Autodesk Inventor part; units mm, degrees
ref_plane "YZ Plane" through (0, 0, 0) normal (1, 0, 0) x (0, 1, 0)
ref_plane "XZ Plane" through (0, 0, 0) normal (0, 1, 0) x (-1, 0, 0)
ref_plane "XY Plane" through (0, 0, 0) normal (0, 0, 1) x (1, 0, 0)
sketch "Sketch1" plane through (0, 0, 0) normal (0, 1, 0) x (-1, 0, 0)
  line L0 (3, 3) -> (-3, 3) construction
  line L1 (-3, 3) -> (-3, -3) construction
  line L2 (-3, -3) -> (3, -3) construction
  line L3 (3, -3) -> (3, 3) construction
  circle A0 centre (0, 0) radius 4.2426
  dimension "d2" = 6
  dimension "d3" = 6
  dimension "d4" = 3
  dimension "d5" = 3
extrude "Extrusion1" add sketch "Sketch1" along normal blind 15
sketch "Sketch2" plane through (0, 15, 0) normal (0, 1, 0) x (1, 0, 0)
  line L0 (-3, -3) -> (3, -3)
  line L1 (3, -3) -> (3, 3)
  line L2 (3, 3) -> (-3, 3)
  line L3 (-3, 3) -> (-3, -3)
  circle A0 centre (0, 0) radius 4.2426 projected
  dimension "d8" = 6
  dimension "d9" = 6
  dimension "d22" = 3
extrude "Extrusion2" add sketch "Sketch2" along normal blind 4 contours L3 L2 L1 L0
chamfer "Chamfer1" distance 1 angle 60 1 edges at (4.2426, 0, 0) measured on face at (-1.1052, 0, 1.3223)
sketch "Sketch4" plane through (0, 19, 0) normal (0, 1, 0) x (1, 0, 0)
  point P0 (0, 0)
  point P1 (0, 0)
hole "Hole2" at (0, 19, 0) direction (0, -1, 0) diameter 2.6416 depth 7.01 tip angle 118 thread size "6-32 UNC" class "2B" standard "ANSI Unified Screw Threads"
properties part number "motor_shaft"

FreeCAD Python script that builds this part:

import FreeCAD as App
import Part
import Sketcher

V = App.Vector
Q = App.Units.Quantity


def edges_at(feature, points):
    """Names of the edges that pass closest to the given points."""
    edges = feature.Shape.Edges
    near = lambda p: min(range(len(edges)), key=lambda i: edges[i].distToShape(Part.Vertex(*p))[0])
    return sorted({f"Edge{near(p) + 1}" for p in points})


def add_polygon(sketch, points):
    """Adds a closed chain of lines whose ends are joined by coincident constraints."""
    first, n = sketch.GeometryCount, len(points)
    for a, b in zip(points, points[1:] + points[:1]):
        sketch.addGeometry(Part.LineSegment(App.Vector(*a, 0), App.Vector(*b, 0)), False)
    for i in range(n):
        sketch.addConstraint(Sketcher.Constraint("Coincident", first + i, 2, first + (i + 1) % n, 1))

doc = App.newDocument("Part")
body = doc.addObject("PartDesign::Body", "Body")

# Sketch on XZ plane
sketch1 = body.newObject("Sketcher::SketchObject", "Sketch")
sketch1.AttachmentSupport = (doc.getObject("XZ_Plane"), [""])
sketch1.MapMode = "FlatFace"
sketch1.addGeometry(Part.Circle(V(0, 0, 0), V(0, 0, 1), 4.2), False)
sketch1.addConstraint([
    Sketcher.Constraint("Coincident", 0, 3, -1, 1),
    Sketcher.Constraint("Diameter", 0, Q("8.4852 mm")),
])
pad1 = body.newObject("PartDesign::Pad", "Pad")
pad1.Profile = sketch1
pad1.Length = 15
pad1.Reversed = True

# Sketch on XZ plane
sketch2 = body.newObject("Sketcher::SketchObject", "Sketch001")
sketch2.AttachmentSupport = (doc.getObject("XZ_Plane"), [""])
sketch2.MapMode = "FlatFace"
sketch2.AttachmentOffset = App.Placement(V(0, 0, -15), App.Rotation())
add_polygon(sketch2, [(-3, -3), (-3, 3), (3, 3), (3, -3)])  # lines 0-3
sketch2.addConstraint([
    Sketcher.Constraint("Vertical", 0),
    Sketcher.Constraint("Horizontal", 1),
    Sketcher.Constraint("Vertical", 2),
    Sketcher.Constraint("Horizontal", 3),
    Sketcher.Constraint("Symmetric", 0, 2, 2, 2, -1, 1),
    Sketcher.Constraint("Equal", 3, 0),
    Sketcher.Constraint("DistanceX", 1, 1, 1, 2, Q("6 mm")),
])
pad2 = body.newObject("PartDesign::Pad", "Pad001")
pad2.Profile = sketch2
pad2.Length = 4
pad2.Reversed = True
doc.recompute()

chamfer = body.newObject("PartDesign::Chamfer", "Chamfer")
chamfer.Base = (pad2, edges_at(pad2, [(4.243, 0, 0)]))
chamfer.ChamferType = "Distance and Angle"
chamfer.Size = 1
chamfer.Angle = 60
chamfer.FlipDirection = True

# Sketch on XZ plane
sketch3 = body.newObject("Sketcher::SketchObject", "Sketch002")
sketch3.AttachmentSupport = (doc.getObject("XZ_Plane"), [""])
sketch3.MapMode = "FlatFace"
sketch3.AttachmentOffset = App.Placement(V(0, 0, -19), App.Rotation())
sketch3.addGeometry(Part.Circle(V(0, 0, 0), V(0, 0, 1), 1.3), False)
sketch3.addConstraint([
    Sketcher.Constraint("Coincident", 0, 3, -1, 1),
    Sketcher.Constraint("Diameter", 0, Q("2.6416 mm")),
])
doc.recompute()
hole = body.newObject("PartDesign::Hole", "Hole")
hole.Profile = sketch3
hole.ThreadType = "None"
hole.Diameter = 2.6416
hole.DepthType = "Dimension"
hole.Depth = 7.01
hole.DrillPoint = "Angled"
hole.DrillPointAngle = 118
hole.Reversed = True

doc.recompute()
